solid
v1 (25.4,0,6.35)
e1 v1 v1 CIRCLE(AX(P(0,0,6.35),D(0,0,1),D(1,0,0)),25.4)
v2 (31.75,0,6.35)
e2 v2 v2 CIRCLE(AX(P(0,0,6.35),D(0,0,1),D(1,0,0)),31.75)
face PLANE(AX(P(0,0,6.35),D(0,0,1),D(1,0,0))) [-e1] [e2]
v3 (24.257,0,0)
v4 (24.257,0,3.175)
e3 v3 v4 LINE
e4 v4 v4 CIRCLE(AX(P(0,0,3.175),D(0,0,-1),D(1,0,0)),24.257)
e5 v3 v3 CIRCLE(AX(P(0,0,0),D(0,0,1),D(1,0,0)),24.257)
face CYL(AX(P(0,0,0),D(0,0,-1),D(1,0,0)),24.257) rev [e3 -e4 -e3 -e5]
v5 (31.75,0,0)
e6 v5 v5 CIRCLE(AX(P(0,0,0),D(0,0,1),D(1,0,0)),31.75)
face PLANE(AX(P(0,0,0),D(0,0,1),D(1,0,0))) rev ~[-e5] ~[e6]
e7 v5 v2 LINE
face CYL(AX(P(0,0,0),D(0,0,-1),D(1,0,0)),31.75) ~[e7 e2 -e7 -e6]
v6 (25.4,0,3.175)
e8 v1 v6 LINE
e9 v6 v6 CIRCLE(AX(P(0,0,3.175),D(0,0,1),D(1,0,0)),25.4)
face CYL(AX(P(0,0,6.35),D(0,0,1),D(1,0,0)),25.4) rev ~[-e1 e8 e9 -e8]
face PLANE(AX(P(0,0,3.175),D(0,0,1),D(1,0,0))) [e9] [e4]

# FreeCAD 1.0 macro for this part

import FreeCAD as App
import Part
import Sketcher
from FreeCAD import Vector
Q = App.Units.Quantity

doc = App.newDocument("Part")
body = doc.addObject("PartDesign::Body", "Body")

sketch1 = body.newObject("Sketcher::SketchObject", "Sketch")
sketch1.AttachmentSupport = (doc.getObject("XY_Plane"), [""])
sketch1.MapMode = "FlatFace"
sketch1.addGeometry([
    Part.Circle(Vector(0, 0, 0), Vector(0, 0, 1), 32),
    Part.Circle(Vector(0, 0, 0), Vector(0, 0, 1), 24),
], False)
sketch1.addConstraint([
    Sketcher.Constraint("Coincident", 0, 3, -1, 1),
    Sketcher.Constraint("Coincident", 1, 3, -1, 1),
    Sketcher.Constraint("Diameter", 0, Q("2.5 in")),
    Sketcher.Constraint("Diameter", 1, Q("1.91 in")),
])
pad1 = body.newObject("PartDesign::Pad", "Pad")
pad1.Profile = sketch1
pad1.Length = Q("0.25 in")

sketch2 = body.newObject("Sketcher::SketchObject", "Sketch001")
sketch2.AttachmentSupport = (doc.getObject("XY_Plane"), [""])
sketch2.MapMode = "FlatFace"
sketch2.AttachmentOffset = App.Placement(Vector(0, 0, 0.25 * 25.4), App.Rotation())
sketch2.addGeometry(Part.Circle(Vector(0, 0, 0), Vector(0, 0, 1), 25), False)
sketch2.addConstraint([
    Sketcher.Constraint("Coincident", 0, 3, -1, 1),
    Sketcher.Constraint("Diameter", 0, Q("2 in")),
])
pocket1 = body.newObject("PartDesign::Pocket", "Pocket")
pocket1.Profile = sketch2
pocket1.Length = Q("0.125 in")

doc.recompute()
